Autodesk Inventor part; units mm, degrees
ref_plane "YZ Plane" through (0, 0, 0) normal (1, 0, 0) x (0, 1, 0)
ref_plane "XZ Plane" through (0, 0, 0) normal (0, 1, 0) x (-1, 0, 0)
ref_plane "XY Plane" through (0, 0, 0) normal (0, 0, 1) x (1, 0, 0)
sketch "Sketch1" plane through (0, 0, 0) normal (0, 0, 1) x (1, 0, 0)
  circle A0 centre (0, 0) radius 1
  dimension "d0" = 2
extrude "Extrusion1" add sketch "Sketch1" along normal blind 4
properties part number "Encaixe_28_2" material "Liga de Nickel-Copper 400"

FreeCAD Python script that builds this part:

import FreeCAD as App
import Part
import Sketcher
from FreeCAD import Vector

doc = App.newDocument("Part")
body = doc.addObject("PartDesign::Body", "Body")

sketch1 = body.newObject("Sketcher::SketchObject", "Sketch")
sketch1.AttachmentSupport = (doc.getObject("XY_Plane"), [""])
sketch1.MapMode = "FlatFace"
sketch1.addGeometry(Part.Circle(Vector(0, 0, 0), Vector(0, 0, 1), 1), False)
sketch1.addConstraint([
    Sketcher.Constraint("Coincident", 0, 3, -1, 1),
    Sketcher.Constraint("Diameter", 0, 2.0),
])
pad1 = body.newObject("PartDesign::Pad", "Pad")
pad1.Profile = sketch1
pad1.Length = 4

doc.recompute()
